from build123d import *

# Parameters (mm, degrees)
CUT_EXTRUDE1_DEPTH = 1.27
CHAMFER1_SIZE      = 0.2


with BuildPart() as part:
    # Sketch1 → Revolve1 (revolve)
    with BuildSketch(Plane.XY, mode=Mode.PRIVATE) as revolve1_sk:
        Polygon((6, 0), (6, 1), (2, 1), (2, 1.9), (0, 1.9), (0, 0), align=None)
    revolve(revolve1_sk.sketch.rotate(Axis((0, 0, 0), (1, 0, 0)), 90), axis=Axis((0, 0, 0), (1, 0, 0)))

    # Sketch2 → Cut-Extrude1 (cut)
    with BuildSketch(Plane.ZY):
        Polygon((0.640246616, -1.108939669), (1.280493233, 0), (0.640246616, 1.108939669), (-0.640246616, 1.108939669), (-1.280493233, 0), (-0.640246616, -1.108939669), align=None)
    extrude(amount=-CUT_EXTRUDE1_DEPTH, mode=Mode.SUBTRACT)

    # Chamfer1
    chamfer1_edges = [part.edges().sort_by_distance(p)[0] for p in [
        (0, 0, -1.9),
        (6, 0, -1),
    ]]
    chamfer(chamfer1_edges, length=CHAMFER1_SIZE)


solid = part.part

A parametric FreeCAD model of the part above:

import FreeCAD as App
import Part
import Sketcher
Q = App.Units.Quantity


def edges_at(feature, points):
    """Names of the edges that pass closest to the given points."""
    edges = feature.Shape.Edges
    near = lambda p: min(range(len(edges)), key=lambda i: edges[i].distToShape(Part.Vertex(*p))[0])
    return sorted({f"Edge{near(p) + 1}" for p in points})

doc = App.newDocument("Part")
body = doc.addObject("PartDesign::Body", "Body")

sketch1 = body.newObject("Sketcher::SketchObject", "Sketch")
sketch1.AttachmentSupport = (doc.getObject("XY_Plane"), [""])
sketch1.MapMode = "FlatFace"
sketch1.addGeometry([
    Part.LineSegment(App.Vector(6, 0, 0), App.Vector(6, 1, 0)),
    Part.LineSegment(App.Vector(6, 1, 0), App.Vector(2, 1, 0)),
    Part.LineSegment(App.Vector(2, 1, 0), App.Vector(2, 1.9, 0)),
    Part.LineSegment(App.Vector(2, 1.9, 0), App.Vector(0, 1.9, 0)),
    Part.LineSegment(App.Vector(0, 1.9, 0), App.Vector(0, 0, 0)),
    Part.LineSegment(App.Vector(0, 0, 0), App.Vector(6, 0, 0)),
], False)
sketch1.addConstraint([
    Sketcher.Constraint("Coincident", 0, 2, 1, 1),
    Sketcher.Constraint("Coincident", 1, 2, 2, 1),
    Sketcher.Constraint("Coincident", 2, 2, 3, 1),
    Sketcher.Constraint("Coincident", 3, 2, 4, 1),
    Sketcher.Constraint("Coincident", 4, 2, 5, 1),
    Sketcher.Constraint("Coincident", 5, 2, 0, 1),
    Sketcher.Constraint("Vertical", 0),
    Sketcher.Constraint("Horizontal", 1),
    Sketcher.Constraint("Vertical", 2),
    Sketcher.Constraint("Horizontal", 3),
    Sketcher.Constraint("Vertical", 4),
    Sketcher.Constraint("Horizontal", 5),
    Sketcher.Constraint("Coincident", 4, 2, -1, 1),
    Sketcher.Constraint("DistanceX", 1, 2, 1, 1, 4.0),
    Sketcher.Constraint("DistanceX", 3, 2, 3, 1, 2.0),
    Sketcher.Constraint("DistanceY", 0, 1, 0, 2, 1.0),
    Sketcher.Constraint("DistanceY", 2, 1, 2, 2, 0.9),
])
revolution = body.newObject("PartDesign::Revolution", "Revolution")
revolution.Profile = sketch1
revolution.ReferenceAxis = (sketch1, ["H_Axis"])
revolution.Angle = 360

sketch2 = body.newObject("Sketcher::SketchObject", "Sketch001")
sketch2.AttachmentSupport = (doc.getObject("YZ_Plane"), [""])
sketch2.MapMode = "FlatFace"
sketch2.addGeometry([
    Part.LineSegment(App.Vector(-1.10894, 0.640247, 0), App.Vector(0, 1.280493, 0)),
    Part.LineSegment(App.Vector(0, 1.280493, 0), App.Vector(1.10894, 0.640247, 0)),
    Part.LineSegment(App.Vector(1.10894, 0.640247, 0), App.Vector(1.10894, -0.640247, 0)),
    Part.LineSegment(App.Vector(1.10894, -0.640247, 0), App.Vector(0, -1.280493, 0)),
    Part.LineSegment(App.Vector(0, -1.280493, 0), App.Vector(-1.10894, -0.640247, 0)),
    Part.LineSegment(App.Vector(-1.10894, -0.640247, 0), App.Vector(-1.10894, 0.640247, 0)),
], False)
sketch2.addConstraint([
    Sketcher.Constraint("Coincident", 0, 2, 1, 1),
    Sketcher.Constraint("Coincident", 1, 2, 2, 1),
    Sketcher.Constraint("Coincident", 2, 2, 3, 1),
    Sketcher.Constraint("Coincident", 3, 2, 4, 1),
    Sketcher.Constraint("Coincident", 4, 2, 5, 1),
    Sketcher.Constraint("Coincident", 5, 2, 0, 1),
    Sketcher.Constraint("Vertical", 2),
    Sketcher.Constraint("Vertical", 5),
    Sketcher.Constraint("Symmetric", 0, 2, 3, 2, -1, 1),
    Sketcher.Constraint("Symmetric", 1, 2, 4, 2, -1, 1),
    Sketcher.Constraint("PointOnObject", 0, 2, -2),
    Sketcher.Constraint("Parallel", 0, 3),
    Sketcher.Constraint("Horizontal", 2, 2, 4, 2),
    Sketcher.Constraint("Angle", 0, Q("30 deg")),
    Sketcher.Constraint("DistanceY", 2, 2, 2, 1, 1.280493),
    Sketcher.Constraint("DistanceX", -1, 1, 1, 2, 1.10894),
])
pocket1 = body.newObject("PartDesign::Pocket", "Pocket")
pocket1.Profile = sketch2
pocket1.Length = 1.27
pocket1.Reversed = True
doc.recompute()

chamfer = body.newObject("PartDesign::Chamfer", "Chamfer")
chamfer.Base = (pocket1, edges_at(pocket1, [(0, 0, -1.9), (6, 0, -1)]))
chamfer.Size = 0.2

doc.recompute()
